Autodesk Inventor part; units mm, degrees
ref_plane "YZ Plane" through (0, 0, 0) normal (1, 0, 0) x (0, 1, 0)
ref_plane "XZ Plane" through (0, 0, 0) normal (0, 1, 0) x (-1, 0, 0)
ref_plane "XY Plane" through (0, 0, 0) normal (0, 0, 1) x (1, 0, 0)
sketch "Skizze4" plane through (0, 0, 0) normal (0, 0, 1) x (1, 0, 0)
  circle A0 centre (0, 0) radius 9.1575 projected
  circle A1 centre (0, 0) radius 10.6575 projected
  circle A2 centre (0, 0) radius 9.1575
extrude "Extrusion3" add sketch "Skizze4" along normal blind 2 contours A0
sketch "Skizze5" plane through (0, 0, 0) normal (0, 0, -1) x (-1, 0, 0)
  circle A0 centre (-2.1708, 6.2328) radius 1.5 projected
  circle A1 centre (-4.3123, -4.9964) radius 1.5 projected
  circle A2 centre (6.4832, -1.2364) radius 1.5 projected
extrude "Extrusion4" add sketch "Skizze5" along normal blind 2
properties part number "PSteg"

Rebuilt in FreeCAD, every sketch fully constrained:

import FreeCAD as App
import Part
import Sketcher
Q = App.Units.Quantity

doc = App.newDocument("Part")
body = doc.addObject("PartDesign::Body", "Body")

# Sketch on XY plane
sketch1 = body.newObject("Sketcher::SketchObject", "Sketch")
sketch1.AttachmentSupport = (doc.getObject("XY_Plane"), [""])
sketch1.MapMode = "FlatFace"
sketch1.addGeometry(Part.Circle(App.Vector(0, 0, 0), App.Vector(0, 0, 1), 9), False)
sketch1.addConstraint(Sketcher.Constraint("Coincident", 0, 3, -1, 1))
sketch1.addConstraint(Sketcher.Constraint("Diameter", 0, Q("18.315 mm")))
pad1 = body.newObject("PartDesign::Pad", "Pad")
pad1.Profile = sketch1
pad1.Length = 2

# Sketch on XY plane
sketch2 = body.newObject("Sketcher::SketchObject", "Sketch001")
sketch2.AttachmentSupport = (doc.getObject("XY_Plane"), [""])
sketch2.MapMode = "FlatFace"
sketch2.addGeometry(Part.Circle(App.Vector(2.2, 6.2, 0), App.Vector(0, 0, 1), 1.5), False)
sketch2.addGeometry(Part.Circle(App.Vector(4.3, -5, 0), App.Vector(0, 0, 1), 1.5), False)
sketch2.addGeometry(Part.Circle(App.Vector(-6.5, -1.2, 0), App.Vector(0, 0, 1), 1.5), False)
sketch2.addConstraint(Sketcher.Constraint("Equal", 0, 1))
sketch2.addConstraint(Sketcher.Constraint("Equal", 1, 2))
sketch2.addConstraint(Sketcher.Constraint("Diameter", 0, Q("3 mm")))
sketch2.addConstraint(Sketcher.Constraint("DistanceY", 1, 3, 2, 3, Q("3.76 mm")))
sketch2.addConstraint(Sketcher.Constraint("DistanceX", 2, 3, 0, 3, Q("8.654 mm")))
sketch2.addConstraint(Sketcher.Constraint("DistanceX", -1, 1, 0, 3, Q("2.1708 mm")))
sketch2.addConstraint(Sketcher.Constraint("DistanceY", -1, 1, 0, 3, Q("6.2328 mm")))
sketch2.addConstraint(Sketcher.Constraint("DistanceX", -1, 1, 1, 3, Q("4.3123 mm")))
sketch2.addConstraint(Sketcher.Constraint("DistanceY", 1, 3, -1, 1, Q("4.9964 mm")))
pad2 = body.newObject("PartDesign::Pad", "Pad001")
pad2.Profile = sketch2
pad2.Length = 2
pad2.Reversed = True

doc.recompute()
